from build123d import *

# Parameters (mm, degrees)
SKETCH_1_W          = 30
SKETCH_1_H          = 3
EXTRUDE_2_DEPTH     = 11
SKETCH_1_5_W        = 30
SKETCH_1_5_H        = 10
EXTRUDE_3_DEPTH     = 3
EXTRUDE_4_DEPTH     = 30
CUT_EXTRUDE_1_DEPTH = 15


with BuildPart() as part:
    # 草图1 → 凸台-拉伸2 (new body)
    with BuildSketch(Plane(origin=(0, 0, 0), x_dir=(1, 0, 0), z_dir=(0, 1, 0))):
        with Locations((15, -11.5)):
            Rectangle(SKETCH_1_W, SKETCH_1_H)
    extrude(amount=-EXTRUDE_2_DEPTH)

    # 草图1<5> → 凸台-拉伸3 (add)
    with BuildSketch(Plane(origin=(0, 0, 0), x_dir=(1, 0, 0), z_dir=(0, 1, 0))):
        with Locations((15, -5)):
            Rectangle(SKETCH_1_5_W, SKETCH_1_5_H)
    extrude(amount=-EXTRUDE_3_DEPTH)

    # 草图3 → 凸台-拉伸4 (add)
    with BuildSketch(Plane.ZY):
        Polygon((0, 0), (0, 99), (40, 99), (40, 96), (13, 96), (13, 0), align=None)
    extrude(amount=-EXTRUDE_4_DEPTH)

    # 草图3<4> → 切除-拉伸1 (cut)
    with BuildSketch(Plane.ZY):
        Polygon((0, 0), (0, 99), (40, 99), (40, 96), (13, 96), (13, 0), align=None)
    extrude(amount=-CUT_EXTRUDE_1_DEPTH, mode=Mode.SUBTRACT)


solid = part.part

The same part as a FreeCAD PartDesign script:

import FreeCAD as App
import Part
import Sketcher

V = App.Vector

doc = App.newDocument("Part")
body = doc.addObject("PartDesign::Body", "Body")

# Sketch on XZ plane
sketch1 = body.newObject("Sketcher::SketchObject", "Sketch")
sketch1.AttachmentSupport = (doc.getObject("XZ_Plane"), [""])
sketch1.MapMode = "FlatFace"
sketch1.addGeometry([
    Part.LineSegment(V(0, 10, 0), V(0, 13, 0)),
    Part.LineSegment(V(0, 13, 0), V(30, 13, 0)),
    Part.LineSegment(V(30, 13, 0), V(30, 10, 0)),
    Part.LineSegment(V(30, 10, 0), V(0, 10, 0)),
], False)
sketch1.addConstraint([
    Sketcher.Constraint("Coincident", 0, 2, 1, 1),
    Sketcher.Constraint("Coincident", 1, 2, 2, 1),
    Sketcher.Constraint("Coincident", 2, 2, 3, 1),
    Sketcher.Constraint("Coincident", 3, 2, 0, 1),
    Sketcher.Constraint("Vertical", 0),
    Sketcher.Constraint("Horizontal", 1),
    Sketcher.Constraint("Vertical", 2),
    Sketcher.Constraint("Horizontal", 3),
    Sketcher.Constraint("PointOnObject", 0, 2, -2),
    Sketcher.Constraint("DistanceX", 1, 1, 1, 2, 30.0),
    Sketcher.Constraint("DistanceY", 0, 1, 0, 2, 3.0),
    Sketcher.Constraint("DistanceY", -1, 1, 0, 2, 13.0),
])
pad1 = body.newObject("PartDesign::Pad", "Pad")
pad1.Profile = sketch1
pad1.Length = 11

# Sketch on XZ plane
sketch2 = body.newObject("Sketcher::SketchObject", "Sketch001")
sketch2.AttachmentSupport = (doc.getObject("XZ_Plane"), [""])
sketch2.MapMode = "FlatFace"
sketch2.addGeometry([
    Part.LineSegment(V(0, 0, 0), V(0, 10, 0)),
    Part.LineSegment(V(0, 10, 0), V(30, 10, 0)),
    Part.LineSegment(V(30, 10, 0), V(30, 0, 0)),
    Part.LineSegment(V(30, 0, 0), V(0, 0, 0)),
], False)
sketch2.addConstraint([
    Sketcher.Constraint("Coincident", 0, 2, 1, 1),
    Sketcher.Constraint("Coincident", 1, 2, 2, 1),
    Sketcher.Constraint("Coincident", 2, 2, 3, 1),
    Sketcher.Constraint("Coincident", 3, 2, 0, 1),
    Sketcher.Constraint("Vertical", 0),
    Sketcher.Constraint("Horizontal", 1),
    Sketcher.Constraint("Vertical", 2),
    Sketcher.Constraint("Horizontal", 3),
    Sketcher.Constraint("Coincident", 3, 2, -1, 1),
    Sketcher.Constraint("DistanceX", 1, 1, 1, 2, 30.0),
    Sketcher.Constraint("DistanceY", 0, 1, 0, 2, 10.0),
])
pad2 = body.newObject("PartDesign::Pad", "Pad001")
pad2.Profile = sketch2
pad2.Length = 3

# Sketch on YZ plane
sketch3 = body.newObject("Sketcher::SketchObject", "Sketch002")
sketch3.AttachmentSupport = (doc.getObject("YZ_Plane"), [""])
sketch3.MapMode = "FlatFace"
sketch3.addGeometry([
    Part.LineSegment(V(99, 0, 0), V(0, 0, 0)),  # 0
    Part.LineSegment(V(0, 0, 0), V(0, 13, 0)),  # 1
    Part.LineSegment(V(0, 13, 0), V(96, 13, 0)),  # 2
    Part.LineSegment(V(96, 13, 0), V(96, 40, 0)),  # 3
    Part.LineSegment(V(96, 40, 0), V(99, 40, 0)),  # 4
    Part.LineSegment(V(99, 40, 0), V(99, 0, 0)),  # 5
], False)
sketch3.addConstraint([
    Sketcher.Constraint("Coincident", 0, 2, 1, 1),
    Sketcher.Constraint("Coincident", 1, 2, 2, 1),
    Sketcher.Constraint("Coincident", 2, 2, 3, 1),
    Sketcher.Constraint("Coincident", 3, 2, 4, 1),
    Sketcher.Constraint("Coincident", 4, 2, 5, 1),
    Sketcher.Constraint("Coincident", 5, 2, 0, 1),
    Sketcher.Constraint("Horizontal", 0),
    Sketcher.Constraint("Vertical", 1),
    Sketcher.Constraint("Horizontal", 2),
    Sketcher.Constraint("Vertical", 3),
    Sketcher.Constraint("Horizontal", 4),
    Sketcher.Constraint("Vertical", 5),
    Sketcher.Constraint("Coincident", 0, 2, -1, 1),
    Sketcher.Constraint("DistanceX", 0, 2, 0, 1, 99.0),
    Sketcher.Constraint("DistanceX", 2, 1, 2, 2, 96.0),
    Sketcher.Constraint("DistanceY", 1, 1, 1, 2, 13.0),
    Sketcher.Constraint("DistanceY", 3, 1, 3, 2, 27.0),
])
pad3 = body.newObject("PartDesign::Pad", "Pad002")
pad3.Profile = sketch3
pad3.Length = 30

# Sketch on YZ plane
sketch4 = body.newObject("Sketcher::SketchObject", "Sketch003")
sketch4.AttachmentSupport = (doc.getObject("YZ_Plane"), [""])
sketch4.MapMode = "FlatFace"
sketch4.addGeometry([
    Part.LineSegment(V(99, 0, 0), V(0, 0, 0)),  # 0
    Part.LineSegment(V(0, 0, 0), V(0, 13, 0)),  # 1
    Part.LineSegment(V(0, 13, 0), V(96, 13, 0)),  # 2
    Part.LineSegment(V(96, 13, 0), V(96, 40, 0)),  # 3
    Part.LineSegment(V(96, 40, 0), V(99, 40, 0)),  # 4
    Part.LineSegment(V(99, 40, 0), V(99, 0, 0)),  # 5
], False)
sketch4.addConstraint([
    Sketcher.Constraint("Coincident", 0, 2, 1, 1),
    Sketcher.Constraint("Coincident", 1, 2, 2, 1),
    Sketcher.Constraint("Coincident", 2, 2, 3, 1),
    Sketcher.Constraint("Coincident", 3, 2, 4, 1),
    Sketcher.Constraint("Coincident", 4, 2, 5, 1),
    Sketcher.Constraint("Coincident", 5, 2, 0, 1),
    Sketcher.Constraint("Horizontal", 0),
    Sketcher.Constraint("Vertical", 1),
    Sketcher.Constraint("Horizontal", 2),
    Sketcher.Constraint("Vertical", 3),
    Sketcher.Constraint("Horizontal", 4),
    Sketcher.Constraint("Vertical", 5),
    Sketcher.Constraint("Coincident", 0, 2, -1, 1),
    Sketcher.Constraint("DistanceX", 0, 2, 0, 1, 99.0),
    Sketcher.Constraint("DistanceX", 2, 1, 2, 2, 96.0),
    Sketcher.Constraint("DistanceY", 1, 1, 1, 2, 13.0),
    Sketcher.Constraint("DistanceY", 3, 1, 3, 2, 27.0),
])
pocket1 = body.newObject("PartDesign::Pocket", "Pocket")
pocket1.Profile = sketch4
pocket1.Length = 15
pocket1.Reversed = True

doc.recompute()
